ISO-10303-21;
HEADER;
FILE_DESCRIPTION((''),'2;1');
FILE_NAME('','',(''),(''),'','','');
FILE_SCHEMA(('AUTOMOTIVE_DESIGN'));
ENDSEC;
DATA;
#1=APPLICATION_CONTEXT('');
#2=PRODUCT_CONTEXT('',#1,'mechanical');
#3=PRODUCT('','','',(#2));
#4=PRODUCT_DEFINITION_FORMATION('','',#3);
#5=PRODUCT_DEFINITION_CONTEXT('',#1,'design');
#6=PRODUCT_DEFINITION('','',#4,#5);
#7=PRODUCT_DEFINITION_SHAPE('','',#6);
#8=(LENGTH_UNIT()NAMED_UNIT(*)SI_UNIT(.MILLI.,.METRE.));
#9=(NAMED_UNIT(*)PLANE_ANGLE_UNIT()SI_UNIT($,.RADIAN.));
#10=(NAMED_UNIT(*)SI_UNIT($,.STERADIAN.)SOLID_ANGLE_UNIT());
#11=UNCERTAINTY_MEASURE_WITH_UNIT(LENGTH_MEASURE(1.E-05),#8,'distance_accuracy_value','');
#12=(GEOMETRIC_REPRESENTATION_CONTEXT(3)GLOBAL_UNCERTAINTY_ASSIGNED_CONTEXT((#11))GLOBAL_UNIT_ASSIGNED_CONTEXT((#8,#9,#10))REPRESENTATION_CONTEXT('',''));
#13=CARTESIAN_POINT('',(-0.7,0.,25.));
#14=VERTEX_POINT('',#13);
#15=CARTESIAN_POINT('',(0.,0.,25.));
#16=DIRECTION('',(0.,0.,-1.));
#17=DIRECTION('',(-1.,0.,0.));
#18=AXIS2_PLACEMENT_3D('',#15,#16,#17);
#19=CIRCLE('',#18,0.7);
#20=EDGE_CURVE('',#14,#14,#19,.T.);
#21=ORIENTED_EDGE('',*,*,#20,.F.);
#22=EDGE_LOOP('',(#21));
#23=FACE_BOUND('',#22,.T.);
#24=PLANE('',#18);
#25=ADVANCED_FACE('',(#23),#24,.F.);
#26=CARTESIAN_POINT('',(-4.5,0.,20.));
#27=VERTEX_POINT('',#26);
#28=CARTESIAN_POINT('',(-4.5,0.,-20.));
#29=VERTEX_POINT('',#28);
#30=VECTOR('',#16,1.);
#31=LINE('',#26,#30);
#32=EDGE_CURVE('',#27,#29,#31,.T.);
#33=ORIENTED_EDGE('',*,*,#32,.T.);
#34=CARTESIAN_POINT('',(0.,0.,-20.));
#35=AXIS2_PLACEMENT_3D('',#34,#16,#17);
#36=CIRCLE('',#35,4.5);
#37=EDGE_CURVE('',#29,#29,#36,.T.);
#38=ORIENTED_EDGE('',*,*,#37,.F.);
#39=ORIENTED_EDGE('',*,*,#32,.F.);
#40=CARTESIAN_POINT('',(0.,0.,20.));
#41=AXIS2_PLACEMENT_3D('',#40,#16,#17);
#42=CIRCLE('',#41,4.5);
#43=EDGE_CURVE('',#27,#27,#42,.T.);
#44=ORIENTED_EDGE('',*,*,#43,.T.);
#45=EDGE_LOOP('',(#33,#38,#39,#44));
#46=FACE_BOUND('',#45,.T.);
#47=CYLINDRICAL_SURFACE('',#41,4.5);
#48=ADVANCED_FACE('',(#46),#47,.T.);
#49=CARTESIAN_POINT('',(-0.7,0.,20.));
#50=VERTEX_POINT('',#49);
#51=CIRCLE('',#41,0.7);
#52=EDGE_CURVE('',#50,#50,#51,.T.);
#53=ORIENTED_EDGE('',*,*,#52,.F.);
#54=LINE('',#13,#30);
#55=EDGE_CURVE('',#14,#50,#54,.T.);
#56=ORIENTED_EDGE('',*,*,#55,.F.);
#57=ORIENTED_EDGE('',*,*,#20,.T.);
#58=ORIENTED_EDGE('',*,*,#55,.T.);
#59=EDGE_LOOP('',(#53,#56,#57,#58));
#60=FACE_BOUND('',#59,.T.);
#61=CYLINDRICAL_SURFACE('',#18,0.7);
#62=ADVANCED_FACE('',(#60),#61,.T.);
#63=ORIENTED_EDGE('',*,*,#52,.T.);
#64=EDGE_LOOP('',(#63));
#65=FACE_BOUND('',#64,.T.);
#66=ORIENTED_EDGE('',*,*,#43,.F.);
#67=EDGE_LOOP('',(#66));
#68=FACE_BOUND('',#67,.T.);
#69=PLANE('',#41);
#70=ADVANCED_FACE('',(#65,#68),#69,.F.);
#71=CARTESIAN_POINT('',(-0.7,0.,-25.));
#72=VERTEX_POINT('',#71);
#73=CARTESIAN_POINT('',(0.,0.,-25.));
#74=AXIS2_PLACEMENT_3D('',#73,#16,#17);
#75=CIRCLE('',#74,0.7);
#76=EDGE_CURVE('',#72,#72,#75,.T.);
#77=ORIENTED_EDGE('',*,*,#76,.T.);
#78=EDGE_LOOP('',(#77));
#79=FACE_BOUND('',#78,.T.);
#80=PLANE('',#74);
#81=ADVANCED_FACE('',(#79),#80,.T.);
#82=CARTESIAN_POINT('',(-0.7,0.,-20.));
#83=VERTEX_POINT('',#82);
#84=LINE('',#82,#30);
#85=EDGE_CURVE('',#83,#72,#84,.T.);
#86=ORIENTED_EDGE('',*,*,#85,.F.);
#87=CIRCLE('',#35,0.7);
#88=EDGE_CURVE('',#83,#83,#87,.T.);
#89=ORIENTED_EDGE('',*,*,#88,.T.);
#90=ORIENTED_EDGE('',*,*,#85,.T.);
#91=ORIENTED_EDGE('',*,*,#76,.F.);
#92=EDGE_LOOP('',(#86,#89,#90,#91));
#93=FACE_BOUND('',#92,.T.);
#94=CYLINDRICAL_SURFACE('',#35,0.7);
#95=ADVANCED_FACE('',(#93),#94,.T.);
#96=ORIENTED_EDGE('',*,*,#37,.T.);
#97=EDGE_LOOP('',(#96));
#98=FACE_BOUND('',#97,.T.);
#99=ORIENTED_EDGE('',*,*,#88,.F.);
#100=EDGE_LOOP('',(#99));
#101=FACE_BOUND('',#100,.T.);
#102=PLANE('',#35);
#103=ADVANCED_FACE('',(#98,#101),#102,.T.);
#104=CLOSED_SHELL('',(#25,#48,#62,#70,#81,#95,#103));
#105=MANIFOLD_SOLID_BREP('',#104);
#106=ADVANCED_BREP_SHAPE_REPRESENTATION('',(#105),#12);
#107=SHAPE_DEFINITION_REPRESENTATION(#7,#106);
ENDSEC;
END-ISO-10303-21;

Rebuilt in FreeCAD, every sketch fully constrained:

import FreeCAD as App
import Part
import Sketcher
from FreeCAD import Vector

doc = App.newDocument("Part")
body = doc.addObject("PartDesign::Body", "Body")

# Sketch on XZ plane
sketch1 = body.newObject("Sketcher::SketchObject", "Sketch")
sketch1.AttachmentSupport = (doc.getObject("XZ_Plane"), [""])
sketch1.MapMode = "FlatFace"
sketch1.addGeometry([
    Part.LineSegment(Vector(-0.7, 25, 0), Vector(0, 25, 0)),  # 0
    Part.LineSegment(Vector(0, 25, 0), Vector(0, -25, 0)),  # 1
    Part.LineSegment(Vector(0, -25, 0), Vector(-0.7, -25, 0)),  # 2
    Part.LineSegment(Vector(-0.7, -25, 0), Vector(-0.7, -20, 0)),  # 3
    Part.LineSegment(Vector(-0.7, -20, 0), Vector(-4.5, -20, 0)),  # 4
    Part.LineSegment(Vector(-4.5, -20, 0), Vector(-4.5, 20, 0)),  # 5
    Part.LineSegment(Vector(-4.5, 20, 0), Vector(-0.7, 20, 0)),  # 6
    Part.LineSegment(Vector(-0.7, 20, 0), Vector(-0.7, 25, 0)),  # 7
], False)
sketch1.addConstraint([
    Sketcher.Constraint("Coincident", 0, 2, 1, 1),
    Sketcher.Constraint("Coincident", 1, 2, 2, 1),
    Sketcher.Constraint("Coincident", 2, 2, 3, 1),
    Sketcher.Constraint("Coincident", 3, 2, 4, 1),
    Sketcher.Constraint("Coincident", 4, 2, 5, 1),
    Sketcher.Constraint("Coincident", 5, 2, 6, 1),
    Sketcher.Constraint("Coincident", 6, 2, 7, 1),
    Sketcher.Constraint("Coincident", 7, 2, 0, 1),
    Sketcher.Constraint("Horizontal", 0),
    Sketcher.Constraint("Vertical", 1),
    Sketcher.Constraint("Horizontal", 2),
    Sketcher.Constraint("Vertical", 3),
    Sketcher.Constraint("Horizontal", 4),
    Sketcher.Constraint("Vertical", 5),
    Sketcher.Constraint("Horizontal", 6),
    Sketcher.Constraint("Vertical", 7),
    Sketcher.Constraint("Symmetric", 0, 2, 1, 2, -1, 1),
    Sketcher.Constraint("Symmetric", 3, 2, 6, 2, -1),
    Sketcher.Constraint("DistanceY", 3, 1, 3, 2, 5.0),
    Sketcher.Constraint("DistanceY", 5, 1, 5, 2, 40.0),
    Sketcher.Constraint("DistanceX", 0, 1, 0, 2, 0.7),
    Sketcher.Constraint("DistanceX", 4, 2, 4, 1, 3.8),
])
revolution = body.newObject("PartDesign::Revolution", "Revolution")
revolution.Profile = sketch1
revolution.ReferenceAxis = (sketch1, ["V_Axis"])
revolution.Angle = 360

doc.recompute()
